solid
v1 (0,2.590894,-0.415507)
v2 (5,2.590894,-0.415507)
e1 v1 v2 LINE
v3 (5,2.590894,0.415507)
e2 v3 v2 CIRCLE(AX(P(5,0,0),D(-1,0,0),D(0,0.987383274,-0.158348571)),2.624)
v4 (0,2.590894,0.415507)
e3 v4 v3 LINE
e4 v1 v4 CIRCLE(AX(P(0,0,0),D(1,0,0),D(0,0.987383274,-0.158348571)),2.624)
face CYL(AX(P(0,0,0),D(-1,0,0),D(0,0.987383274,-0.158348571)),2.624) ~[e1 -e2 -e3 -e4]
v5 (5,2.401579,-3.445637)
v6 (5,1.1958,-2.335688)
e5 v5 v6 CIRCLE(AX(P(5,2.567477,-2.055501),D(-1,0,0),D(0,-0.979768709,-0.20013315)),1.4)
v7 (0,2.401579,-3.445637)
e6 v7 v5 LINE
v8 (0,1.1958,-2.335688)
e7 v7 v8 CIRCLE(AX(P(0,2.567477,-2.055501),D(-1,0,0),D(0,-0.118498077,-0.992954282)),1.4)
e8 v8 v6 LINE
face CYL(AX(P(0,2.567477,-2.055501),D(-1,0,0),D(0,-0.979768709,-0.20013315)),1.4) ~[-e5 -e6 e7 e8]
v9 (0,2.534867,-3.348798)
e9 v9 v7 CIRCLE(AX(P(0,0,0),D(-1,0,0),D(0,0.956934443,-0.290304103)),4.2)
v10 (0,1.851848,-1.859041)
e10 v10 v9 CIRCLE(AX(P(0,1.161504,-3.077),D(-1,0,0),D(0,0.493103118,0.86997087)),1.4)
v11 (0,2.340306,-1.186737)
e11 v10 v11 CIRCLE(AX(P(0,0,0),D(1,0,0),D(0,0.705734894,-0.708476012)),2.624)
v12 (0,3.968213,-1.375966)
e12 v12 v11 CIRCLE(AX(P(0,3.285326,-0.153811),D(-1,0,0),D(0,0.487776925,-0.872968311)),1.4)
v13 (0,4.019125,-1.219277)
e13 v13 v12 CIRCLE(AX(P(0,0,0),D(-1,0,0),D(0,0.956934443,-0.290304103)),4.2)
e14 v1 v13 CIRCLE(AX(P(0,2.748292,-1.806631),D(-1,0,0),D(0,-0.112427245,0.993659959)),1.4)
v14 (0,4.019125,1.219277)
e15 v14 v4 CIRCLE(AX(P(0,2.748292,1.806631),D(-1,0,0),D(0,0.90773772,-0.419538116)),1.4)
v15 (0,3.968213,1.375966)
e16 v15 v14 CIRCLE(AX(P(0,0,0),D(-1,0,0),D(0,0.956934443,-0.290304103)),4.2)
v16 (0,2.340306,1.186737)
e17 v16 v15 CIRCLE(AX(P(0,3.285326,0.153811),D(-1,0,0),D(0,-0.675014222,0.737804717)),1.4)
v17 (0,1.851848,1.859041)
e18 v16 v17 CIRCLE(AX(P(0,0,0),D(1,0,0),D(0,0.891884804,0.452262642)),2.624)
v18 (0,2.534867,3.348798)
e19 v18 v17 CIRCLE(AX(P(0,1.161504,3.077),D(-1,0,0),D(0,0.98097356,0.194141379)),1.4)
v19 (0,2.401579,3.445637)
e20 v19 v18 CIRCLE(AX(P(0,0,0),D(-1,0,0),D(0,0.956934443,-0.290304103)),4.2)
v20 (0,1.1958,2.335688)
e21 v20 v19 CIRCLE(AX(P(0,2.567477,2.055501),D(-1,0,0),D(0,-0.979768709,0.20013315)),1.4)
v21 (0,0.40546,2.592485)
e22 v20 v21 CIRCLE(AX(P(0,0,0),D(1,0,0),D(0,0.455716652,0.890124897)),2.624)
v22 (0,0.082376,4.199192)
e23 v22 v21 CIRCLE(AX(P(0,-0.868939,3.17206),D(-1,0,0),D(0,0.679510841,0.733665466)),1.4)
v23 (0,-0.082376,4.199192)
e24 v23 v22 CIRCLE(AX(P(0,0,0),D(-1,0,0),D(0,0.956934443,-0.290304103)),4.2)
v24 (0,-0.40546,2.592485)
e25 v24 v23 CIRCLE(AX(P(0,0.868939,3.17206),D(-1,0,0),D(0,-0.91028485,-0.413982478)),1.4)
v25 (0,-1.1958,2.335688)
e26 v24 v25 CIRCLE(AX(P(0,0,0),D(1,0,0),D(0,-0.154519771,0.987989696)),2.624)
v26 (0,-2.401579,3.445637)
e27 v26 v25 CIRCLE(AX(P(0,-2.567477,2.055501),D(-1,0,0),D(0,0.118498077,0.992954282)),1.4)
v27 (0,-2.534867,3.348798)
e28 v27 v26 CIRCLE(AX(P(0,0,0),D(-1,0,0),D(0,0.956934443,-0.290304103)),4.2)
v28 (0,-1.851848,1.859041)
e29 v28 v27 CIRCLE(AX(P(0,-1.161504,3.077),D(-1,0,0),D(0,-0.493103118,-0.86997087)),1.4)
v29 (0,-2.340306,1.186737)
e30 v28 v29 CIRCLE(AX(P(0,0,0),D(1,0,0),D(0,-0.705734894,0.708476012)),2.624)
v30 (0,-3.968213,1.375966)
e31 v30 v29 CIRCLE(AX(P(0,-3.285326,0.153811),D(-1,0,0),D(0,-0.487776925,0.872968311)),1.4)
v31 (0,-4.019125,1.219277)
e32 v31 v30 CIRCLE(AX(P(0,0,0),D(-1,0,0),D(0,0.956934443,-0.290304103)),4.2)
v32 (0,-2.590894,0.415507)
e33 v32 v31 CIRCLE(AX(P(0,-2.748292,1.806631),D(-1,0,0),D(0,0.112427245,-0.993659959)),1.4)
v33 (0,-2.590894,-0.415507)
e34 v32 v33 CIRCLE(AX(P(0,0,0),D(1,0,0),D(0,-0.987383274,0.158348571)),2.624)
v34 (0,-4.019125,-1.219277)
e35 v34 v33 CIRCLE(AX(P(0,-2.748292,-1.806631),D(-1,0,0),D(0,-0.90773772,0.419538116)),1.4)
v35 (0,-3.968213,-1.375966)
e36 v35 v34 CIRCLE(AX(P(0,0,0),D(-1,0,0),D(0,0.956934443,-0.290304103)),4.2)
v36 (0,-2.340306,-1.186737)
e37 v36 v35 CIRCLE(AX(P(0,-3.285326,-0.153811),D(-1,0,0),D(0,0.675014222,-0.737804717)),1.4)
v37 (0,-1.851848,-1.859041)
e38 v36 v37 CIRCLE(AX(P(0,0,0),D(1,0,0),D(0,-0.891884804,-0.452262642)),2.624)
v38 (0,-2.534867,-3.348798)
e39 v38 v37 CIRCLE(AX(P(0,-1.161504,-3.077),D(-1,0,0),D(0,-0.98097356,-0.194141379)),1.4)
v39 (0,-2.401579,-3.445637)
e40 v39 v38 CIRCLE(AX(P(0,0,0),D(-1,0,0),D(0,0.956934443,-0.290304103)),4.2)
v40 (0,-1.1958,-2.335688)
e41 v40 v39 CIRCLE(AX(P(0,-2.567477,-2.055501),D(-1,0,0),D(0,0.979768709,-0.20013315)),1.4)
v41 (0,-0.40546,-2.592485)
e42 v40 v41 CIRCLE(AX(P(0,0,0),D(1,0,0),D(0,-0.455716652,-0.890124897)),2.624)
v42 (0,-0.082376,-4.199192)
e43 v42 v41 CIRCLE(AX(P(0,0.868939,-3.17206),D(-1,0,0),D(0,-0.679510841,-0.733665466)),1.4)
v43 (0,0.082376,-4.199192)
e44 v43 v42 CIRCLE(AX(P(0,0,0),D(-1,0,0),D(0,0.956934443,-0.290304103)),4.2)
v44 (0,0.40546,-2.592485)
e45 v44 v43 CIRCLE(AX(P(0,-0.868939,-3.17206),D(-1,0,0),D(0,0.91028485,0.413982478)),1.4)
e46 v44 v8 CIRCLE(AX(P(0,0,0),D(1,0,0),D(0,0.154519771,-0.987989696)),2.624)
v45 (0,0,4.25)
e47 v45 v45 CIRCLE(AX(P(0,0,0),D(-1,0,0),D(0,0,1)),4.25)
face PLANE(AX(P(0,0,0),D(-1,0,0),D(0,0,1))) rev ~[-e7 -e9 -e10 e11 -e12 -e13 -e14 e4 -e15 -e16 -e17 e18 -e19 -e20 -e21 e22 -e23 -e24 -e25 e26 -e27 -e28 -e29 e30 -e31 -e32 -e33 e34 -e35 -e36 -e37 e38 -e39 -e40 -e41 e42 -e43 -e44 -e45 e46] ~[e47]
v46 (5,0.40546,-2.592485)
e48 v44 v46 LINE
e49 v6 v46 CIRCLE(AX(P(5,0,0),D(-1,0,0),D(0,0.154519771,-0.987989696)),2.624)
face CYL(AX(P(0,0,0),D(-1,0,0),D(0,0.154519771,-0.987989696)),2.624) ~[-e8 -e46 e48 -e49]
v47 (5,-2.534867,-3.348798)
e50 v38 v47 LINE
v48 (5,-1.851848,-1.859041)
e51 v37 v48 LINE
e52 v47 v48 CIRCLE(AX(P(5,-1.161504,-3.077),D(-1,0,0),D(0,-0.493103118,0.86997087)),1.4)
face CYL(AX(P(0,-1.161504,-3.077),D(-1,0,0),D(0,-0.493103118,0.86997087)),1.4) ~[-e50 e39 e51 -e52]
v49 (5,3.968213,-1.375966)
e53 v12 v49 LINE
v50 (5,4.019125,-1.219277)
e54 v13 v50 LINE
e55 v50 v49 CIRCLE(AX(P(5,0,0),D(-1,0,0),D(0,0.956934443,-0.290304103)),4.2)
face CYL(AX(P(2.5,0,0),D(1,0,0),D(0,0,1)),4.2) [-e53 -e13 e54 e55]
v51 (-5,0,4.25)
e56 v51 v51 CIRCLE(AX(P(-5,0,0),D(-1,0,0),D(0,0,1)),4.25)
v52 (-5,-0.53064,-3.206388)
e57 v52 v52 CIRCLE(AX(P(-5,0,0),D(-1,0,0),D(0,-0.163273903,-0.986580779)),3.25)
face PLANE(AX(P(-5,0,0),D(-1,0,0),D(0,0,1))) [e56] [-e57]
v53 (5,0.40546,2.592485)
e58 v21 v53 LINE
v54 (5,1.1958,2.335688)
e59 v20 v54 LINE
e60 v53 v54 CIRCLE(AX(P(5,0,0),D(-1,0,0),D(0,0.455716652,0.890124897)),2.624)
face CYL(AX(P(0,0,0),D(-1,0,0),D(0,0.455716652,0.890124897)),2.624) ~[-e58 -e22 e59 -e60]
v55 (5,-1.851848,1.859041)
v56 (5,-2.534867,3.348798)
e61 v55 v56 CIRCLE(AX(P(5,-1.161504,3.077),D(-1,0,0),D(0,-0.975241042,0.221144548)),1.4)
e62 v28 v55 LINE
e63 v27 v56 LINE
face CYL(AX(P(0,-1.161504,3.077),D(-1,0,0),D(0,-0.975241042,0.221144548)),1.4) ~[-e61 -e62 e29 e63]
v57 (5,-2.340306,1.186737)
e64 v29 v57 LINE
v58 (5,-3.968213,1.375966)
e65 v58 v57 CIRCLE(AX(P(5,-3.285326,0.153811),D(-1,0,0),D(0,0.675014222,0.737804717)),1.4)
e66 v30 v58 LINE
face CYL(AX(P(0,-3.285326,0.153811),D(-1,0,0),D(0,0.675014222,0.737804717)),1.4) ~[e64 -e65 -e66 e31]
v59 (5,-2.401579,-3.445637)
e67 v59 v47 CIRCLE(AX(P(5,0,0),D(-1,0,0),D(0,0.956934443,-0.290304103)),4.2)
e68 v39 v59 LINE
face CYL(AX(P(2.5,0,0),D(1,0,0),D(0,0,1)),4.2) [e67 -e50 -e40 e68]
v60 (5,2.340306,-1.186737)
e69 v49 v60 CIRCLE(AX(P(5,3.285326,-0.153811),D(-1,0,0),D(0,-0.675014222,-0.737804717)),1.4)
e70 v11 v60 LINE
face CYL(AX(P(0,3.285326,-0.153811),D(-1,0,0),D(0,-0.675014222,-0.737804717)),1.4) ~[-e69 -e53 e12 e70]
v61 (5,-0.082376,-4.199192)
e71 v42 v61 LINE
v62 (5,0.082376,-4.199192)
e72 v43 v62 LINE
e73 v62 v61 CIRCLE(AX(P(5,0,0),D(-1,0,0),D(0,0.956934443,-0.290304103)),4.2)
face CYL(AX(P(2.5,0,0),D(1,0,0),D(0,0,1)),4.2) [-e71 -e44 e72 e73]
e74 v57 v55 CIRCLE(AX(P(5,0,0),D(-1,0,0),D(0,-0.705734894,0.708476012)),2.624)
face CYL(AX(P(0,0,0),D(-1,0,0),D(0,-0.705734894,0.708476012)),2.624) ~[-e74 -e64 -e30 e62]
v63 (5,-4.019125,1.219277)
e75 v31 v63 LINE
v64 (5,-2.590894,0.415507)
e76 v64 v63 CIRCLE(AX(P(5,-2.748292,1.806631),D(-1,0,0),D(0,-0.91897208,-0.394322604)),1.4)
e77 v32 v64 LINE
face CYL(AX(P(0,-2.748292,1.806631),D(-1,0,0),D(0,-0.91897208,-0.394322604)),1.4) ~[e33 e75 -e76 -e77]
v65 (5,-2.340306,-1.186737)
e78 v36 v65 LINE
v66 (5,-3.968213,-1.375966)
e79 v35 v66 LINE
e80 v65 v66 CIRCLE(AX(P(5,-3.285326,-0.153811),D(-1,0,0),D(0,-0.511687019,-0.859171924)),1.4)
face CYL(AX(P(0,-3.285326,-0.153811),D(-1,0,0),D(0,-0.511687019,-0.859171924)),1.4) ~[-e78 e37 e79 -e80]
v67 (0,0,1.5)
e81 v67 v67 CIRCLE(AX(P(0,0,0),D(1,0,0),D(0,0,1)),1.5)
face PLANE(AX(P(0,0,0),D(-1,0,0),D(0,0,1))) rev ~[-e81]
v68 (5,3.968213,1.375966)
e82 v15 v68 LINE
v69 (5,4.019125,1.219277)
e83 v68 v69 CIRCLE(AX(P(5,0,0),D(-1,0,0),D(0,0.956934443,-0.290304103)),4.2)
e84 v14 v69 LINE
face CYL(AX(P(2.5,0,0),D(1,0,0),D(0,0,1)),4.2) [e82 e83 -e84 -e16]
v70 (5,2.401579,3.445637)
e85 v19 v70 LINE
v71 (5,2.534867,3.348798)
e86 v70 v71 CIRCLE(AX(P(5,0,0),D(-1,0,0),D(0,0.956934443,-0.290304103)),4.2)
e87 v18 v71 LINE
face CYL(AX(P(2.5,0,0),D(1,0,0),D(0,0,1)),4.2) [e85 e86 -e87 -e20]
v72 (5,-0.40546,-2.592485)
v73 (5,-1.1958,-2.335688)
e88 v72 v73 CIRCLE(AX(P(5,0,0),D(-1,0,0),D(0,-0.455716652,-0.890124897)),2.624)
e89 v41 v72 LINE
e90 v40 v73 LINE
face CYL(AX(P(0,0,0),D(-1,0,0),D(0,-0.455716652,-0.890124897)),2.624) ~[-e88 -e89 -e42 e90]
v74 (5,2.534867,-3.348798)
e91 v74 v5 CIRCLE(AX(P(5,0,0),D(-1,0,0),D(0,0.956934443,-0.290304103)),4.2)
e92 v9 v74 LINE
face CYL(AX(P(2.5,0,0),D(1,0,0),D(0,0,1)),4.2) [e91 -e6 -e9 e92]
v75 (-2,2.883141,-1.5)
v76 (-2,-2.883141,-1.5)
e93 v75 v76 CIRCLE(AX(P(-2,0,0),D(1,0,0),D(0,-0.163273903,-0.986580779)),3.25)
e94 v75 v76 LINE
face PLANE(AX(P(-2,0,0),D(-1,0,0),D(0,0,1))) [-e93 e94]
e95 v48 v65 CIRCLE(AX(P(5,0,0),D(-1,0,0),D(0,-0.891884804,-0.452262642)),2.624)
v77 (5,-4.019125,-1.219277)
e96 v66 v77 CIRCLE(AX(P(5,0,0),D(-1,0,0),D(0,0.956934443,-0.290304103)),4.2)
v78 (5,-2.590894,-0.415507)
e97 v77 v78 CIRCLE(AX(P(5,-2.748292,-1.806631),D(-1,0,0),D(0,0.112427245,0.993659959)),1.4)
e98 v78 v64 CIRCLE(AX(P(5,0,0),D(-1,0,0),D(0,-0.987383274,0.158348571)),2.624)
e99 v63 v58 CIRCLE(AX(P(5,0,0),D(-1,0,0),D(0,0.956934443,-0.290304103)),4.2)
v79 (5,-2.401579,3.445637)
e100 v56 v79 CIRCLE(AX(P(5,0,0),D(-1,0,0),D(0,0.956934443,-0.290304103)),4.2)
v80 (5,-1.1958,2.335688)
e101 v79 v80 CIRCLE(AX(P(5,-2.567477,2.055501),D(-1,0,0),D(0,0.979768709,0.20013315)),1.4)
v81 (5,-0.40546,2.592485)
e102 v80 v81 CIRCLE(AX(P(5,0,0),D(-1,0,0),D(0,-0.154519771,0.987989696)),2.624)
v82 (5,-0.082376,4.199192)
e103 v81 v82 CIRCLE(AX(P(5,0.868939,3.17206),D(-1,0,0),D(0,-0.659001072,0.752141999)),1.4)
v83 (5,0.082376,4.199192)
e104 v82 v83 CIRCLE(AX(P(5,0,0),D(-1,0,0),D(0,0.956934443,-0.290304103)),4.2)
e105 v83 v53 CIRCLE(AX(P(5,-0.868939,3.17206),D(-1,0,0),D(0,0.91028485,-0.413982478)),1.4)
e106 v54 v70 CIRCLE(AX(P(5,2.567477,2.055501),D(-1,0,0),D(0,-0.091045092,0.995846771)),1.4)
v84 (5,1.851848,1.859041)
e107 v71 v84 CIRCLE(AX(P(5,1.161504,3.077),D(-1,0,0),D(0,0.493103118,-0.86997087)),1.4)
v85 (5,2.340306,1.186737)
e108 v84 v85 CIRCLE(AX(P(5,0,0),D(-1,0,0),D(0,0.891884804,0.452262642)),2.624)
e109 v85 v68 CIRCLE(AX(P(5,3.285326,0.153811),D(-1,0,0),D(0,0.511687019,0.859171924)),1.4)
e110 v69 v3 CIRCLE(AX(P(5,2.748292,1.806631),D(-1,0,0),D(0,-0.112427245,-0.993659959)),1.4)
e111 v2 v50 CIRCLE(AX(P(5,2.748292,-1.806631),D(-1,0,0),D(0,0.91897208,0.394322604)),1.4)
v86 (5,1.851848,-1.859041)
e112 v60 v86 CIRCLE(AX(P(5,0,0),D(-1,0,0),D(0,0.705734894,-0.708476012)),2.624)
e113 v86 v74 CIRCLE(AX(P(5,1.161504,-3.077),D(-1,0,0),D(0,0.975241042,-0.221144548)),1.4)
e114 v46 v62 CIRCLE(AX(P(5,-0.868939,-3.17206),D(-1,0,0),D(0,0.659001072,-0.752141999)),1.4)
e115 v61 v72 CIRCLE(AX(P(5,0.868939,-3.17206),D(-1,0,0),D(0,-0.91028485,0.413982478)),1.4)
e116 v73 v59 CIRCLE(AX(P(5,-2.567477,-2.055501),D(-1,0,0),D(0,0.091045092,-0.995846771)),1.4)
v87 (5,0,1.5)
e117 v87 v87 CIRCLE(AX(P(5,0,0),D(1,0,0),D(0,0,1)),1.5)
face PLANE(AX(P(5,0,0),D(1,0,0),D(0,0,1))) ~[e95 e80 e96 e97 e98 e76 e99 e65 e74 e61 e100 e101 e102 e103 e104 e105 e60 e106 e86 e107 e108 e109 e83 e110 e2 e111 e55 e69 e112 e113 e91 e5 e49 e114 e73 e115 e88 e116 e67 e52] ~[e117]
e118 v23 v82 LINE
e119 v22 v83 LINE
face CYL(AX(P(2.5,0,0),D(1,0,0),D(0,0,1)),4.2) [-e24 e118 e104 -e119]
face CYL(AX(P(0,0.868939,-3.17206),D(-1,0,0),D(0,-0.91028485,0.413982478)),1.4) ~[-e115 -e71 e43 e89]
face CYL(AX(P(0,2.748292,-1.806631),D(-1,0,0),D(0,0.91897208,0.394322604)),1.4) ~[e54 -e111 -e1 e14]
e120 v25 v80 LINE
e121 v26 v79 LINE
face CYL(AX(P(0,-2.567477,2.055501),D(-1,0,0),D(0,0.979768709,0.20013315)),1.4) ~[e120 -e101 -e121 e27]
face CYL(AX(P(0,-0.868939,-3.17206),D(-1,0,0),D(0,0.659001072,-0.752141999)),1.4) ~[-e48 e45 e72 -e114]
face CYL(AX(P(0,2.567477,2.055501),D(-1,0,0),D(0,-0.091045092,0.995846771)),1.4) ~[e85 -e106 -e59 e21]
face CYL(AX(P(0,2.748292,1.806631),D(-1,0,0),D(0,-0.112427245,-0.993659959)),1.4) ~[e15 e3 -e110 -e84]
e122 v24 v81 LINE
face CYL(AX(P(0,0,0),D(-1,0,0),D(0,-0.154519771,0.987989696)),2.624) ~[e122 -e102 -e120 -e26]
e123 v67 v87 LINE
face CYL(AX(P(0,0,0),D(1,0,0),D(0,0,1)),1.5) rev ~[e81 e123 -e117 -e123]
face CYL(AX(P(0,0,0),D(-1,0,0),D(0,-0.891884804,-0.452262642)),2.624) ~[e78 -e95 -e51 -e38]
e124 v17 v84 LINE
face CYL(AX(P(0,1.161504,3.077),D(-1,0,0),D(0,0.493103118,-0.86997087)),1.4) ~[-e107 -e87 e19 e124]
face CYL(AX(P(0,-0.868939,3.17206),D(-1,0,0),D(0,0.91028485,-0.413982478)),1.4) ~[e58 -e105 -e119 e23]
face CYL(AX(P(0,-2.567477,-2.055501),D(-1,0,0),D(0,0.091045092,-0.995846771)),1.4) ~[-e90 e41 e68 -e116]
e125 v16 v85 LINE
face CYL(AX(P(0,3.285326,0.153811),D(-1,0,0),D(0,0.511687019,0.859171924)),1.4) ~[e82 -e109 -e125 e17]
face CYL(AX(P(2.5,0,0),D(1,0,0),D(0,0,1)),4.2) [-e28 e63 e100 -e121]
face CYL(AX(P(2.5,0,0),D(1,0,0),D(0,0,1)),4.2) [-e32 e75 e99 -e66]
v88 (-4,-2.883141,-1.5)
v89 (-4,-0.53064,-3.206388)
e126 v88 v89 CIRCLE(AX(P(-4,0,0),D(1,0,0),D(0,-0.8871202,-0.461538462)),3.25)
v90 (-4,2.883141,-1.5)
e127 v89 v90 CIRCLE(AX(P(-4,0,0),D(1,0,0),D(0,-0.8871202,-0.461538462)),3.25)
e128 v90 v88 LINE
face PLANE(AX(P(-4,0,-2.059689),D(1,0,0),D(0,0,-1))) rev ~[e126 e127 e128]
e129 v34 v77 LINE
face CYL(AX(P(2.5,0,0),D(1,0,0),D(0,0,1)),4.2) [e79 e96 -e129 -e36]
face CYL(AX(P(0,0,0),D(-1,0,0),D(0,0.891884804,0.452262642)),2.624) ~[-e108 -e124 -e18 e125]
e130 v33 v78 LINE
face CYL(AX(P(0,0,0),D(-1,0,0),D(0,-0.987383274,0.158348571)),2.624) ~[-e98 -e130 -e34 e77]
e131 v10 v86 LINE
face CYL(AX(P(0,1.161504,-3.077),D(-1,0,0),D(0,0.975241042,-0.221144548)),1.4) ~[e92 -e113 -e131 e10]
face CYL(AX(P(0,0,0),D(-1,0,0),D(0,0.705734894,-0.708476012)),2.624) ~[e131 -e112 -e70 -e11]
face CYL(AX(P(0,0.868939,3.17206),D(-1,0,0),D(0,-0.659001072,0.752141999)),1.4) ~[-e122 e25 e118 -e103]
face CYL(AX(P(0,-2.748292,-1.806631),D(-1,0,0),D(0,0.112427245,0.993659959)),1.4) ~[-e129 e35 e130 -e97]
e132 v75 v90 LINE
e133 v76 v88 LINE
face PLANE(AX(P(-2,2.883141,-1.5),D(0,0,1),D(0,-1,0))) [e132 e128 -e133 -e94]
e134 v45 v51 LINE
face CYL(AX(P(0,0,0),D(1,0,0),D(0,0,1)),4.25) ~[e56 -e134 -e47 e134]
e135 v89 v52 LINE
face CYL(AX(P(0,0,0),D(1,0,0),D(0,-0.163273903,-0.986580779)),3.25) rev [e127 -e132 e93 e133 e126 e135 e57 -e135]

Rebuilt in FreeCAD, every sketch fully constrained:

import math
import FreeCAD as App
import Part
import Sketcher


def add_polygon(sketch, points):
    """Adds a closed chain of lines whose ends are joined by coincident constraints."""
    first, n = sketch.GeometryCount, len(points)
    for a, b in zip(points, points[1:] + points[:1]):
        sketch.addGeometry(Part.LineSegment(App.Vector(*a, 0), App.Vector(*b, 0)), False)
    for i in range(n):
        sketch.addConstraint(Sketcher.Constraint("Coincident", first + i, 2, first + (i + 1) % n, 1))

doc = App.newDocument("Part")
body = doc.addObject("PartDesign::Body", "Body")

sketch1 = body.newObject("Sketcher::SketchObject", "Sketch")
sketch1.AttachmentSupport = (doc.getObject("XZ_Plane"), [""])
sketch1.MapMode = "FlatFace"
add_polygon(sketch1, [(0, -4.2), (0, 0), (5, 0), (5, -4.2)])
sketch1.addConstraint([
    Sketcher.Constraint("Vertical", 0),
    Sketcher.Constraint("Horizontal", 1),
    Sketcher.Constraint("Vertical", 2),
    Sketcher.Constraint("Horizontal", 3),
    Sketcher.Constraint("Coincident", 0, 2, -1, 1),
    Sketcher.Constraint("DistanceX", 1, 1, 1, 2, 5.0),
    Sketcher.Constraint("DistanceY", 0, 1, 0, 2, 4.2),
])
revolution = body.newObject("PartDesign::Revolution", "Revolution")
revolution.Profile = sketch1
revolution.ReferenceAxis = (sketch1, ["H_Axis"])
revolution.Angle = 360

sketch2 = body.newObject("Sketcher::SketchObject", "Sketch001")
sketch2.AttachmentSupport = (doc.getObject("YZ_Plane"), [""])
sketch2.MapMode = "FlatFace"
sketch2.addGeometry([
    Part.ArcOfCircle(Part.Circle(App.Vector(0, 0, 0), App.Vector(0, 0, 1), 2.624), math.radians(-9.111054), math.radians(9.111054)),
    Part.ArcOfCircle(Part.Circle(App.Vector(2.748292, -1.806631, 0), App.Vector(0, 0, 1), 1.4), math.radians(23.223733), math.radians(96.455255)),
    Part.ArcOfCircle(Part.Circle(App.Vector(0, 0, 0), App.Vector(0, 0, 1), 4.2254), math.radians(-17.272324), math.radians(17.272324)),
    Part.ArcOfCircle(Part.Circle(App.Vector(2.748292, 1.806631, 0), App.Vector(0, 0, 1), 1.4), math.radians(-96.455255), math.radians(-23.223733)),
], False)
sketch2.addConstraint([
    Sketcher.Constraint("Coincident", 0, 1, 1, 2),
    Sketcher.Constraint("Coincident", 1, 1, 2, 1),
    Sketcher.Constraint("Coincident", 2, 2, 3, 2),
    Sketcher.Constraint("Coincident", 3, 1, 0, 2),
    Sketcher.Constraint("Coincident", 0, 3, -1, 1),
    Sketcher.Constraint("Coincident", 2, 3, -1, 1),
    Sketcher.Constraint("Equal", 1, 3),
    Sketcher.Constraint("Symmetric", 1, 3, 3, 3, -1),
    Sketcher.Constraint("Radius", 1, 1.4),
    Sketcher.Constraint("Radius", 0, 2.624),
    Sketcher.Constraint("Radius", 2, 4.2254),
    Sketcher.Constraint("DistanceX", 0, 1, 1, 3, 0.157398),
    Sketcher.Constraint("DistanceX", -1, 1, 1, 3, 2.748292),
])
pocket1 = body.newObject("PartDesign::Pocket", "Pocket")
pocket1.Profile = sketch2
pocket1.Type = "ThroughAll"
pocket1.Reversed = True
doc.recompute()

polarpattern = body.newObject("PartDesign::PolarPattern", "PolarPattern")
polarpattern.Originals = [pocket1]
polarpattern.Axis = (doc.getObject("X_Axis"), [""])
polarpattern.Angle = 360
polarpattern.Occurrences = 10
body.Tip = polarpattern

sketch3 = body.newObject("Sketcher::SketchObject", "Sketch002")
sketch3.AttachmentSupport = (doc.getObject("YZ_Plane"), [""])
sketch3.MapMode = "FlatFace"
sketch3.addGeometry(Part.Circle(App.Vector(0, 0, 0), App.Vector(0, 0, 1), 1.5), False)
sketch3.addConstraint([
    Sketcher.Constraint("Coincident", 0, 3, -1, 1),
    Sketcher.Constraint("Diameter", 0, 3.0),
])
pocket2 = body.newObject("PartDesign::Pocket", "Pocket001")
pocket2.Profile = sketch3
pocket2.Length = 100.000102
pocket2.Midplane = True

sketch4 = body.newObject("Sketcher::SketchObject", "Sketch003")
sketch4.AttachmentSupport = (doc.getObject("YZ_Plane"), [""])
sketch4.MapMode = "FlatFace"
sketch4.addGeometry([
    Part.Circle(App.Vector(0, 0, 0), App.Vector(0, 0, 1), 4.25),
    Part.Circle(App.Vector(0, 0, 0), App.Vector(0, 0, 1), 3.25),
], False)
sketch4.addConstraint([
    Sketcher.Constraint("Coincident", 0, 3, -1, 1),
    Sketcher.Constraint("Coincident", 1, 3, -1, 1),
    Sketcher.Constraint("Diameter", 0, 8.5),
    Sketcher.Constraint("Diameter", 1, 6.5),
])
pad1 = body.newObject("PartDesign::Pad", "Pad")
pad1.Profile = sketch4
pad1.Length = 5
pad1.Reversed = True

sketch5 = body.newObject("Sketcher::SketchObject", "Sketch004")
sketch5.AttachmentSupport = (doc.getObject("YZ_Plane"), [""])
sketch5.MapMode = "FlatFace"
sketch5.addGeometry(Part.Circle(App.Vector(0, 0, 0), App.Vector(0, 0, 1), 3.25), False)
sketch5.addConstraint([
    Sketcher.Constraint("Coincident", 0, 3, -1, 1),
    Sketcher.Constraint("Diameter", 0, 6.5),
])
pad2 = body.newObject("PartDesign::Pad", "Pad001")
pad2.Profile = sketch5
pad2.Length = 2
pad2.Reversed = True

sketch6 = body.newObject("Sketcher::SketchObject", "Sketch005")
sketch6.AttachmentSupport = (doc.getObject("YZ_Plane"), [""])
sketch6.MapMode = "FlatFace"
sketch6.AttachmentOffset = App.Placement(App.Vector(0, 0, -2), App.Rotation())
sketch6.addGeometry([
    Part.LineSegment(App.Vector(-2.883141, -1.5, 0), App.Vector(2.883141, -1.5, 0)),
    Part.ArcOfCircle(Part.Circle(App.Vector(0, 0, 0), App.Vector(0, 0, 1), 3.25), math.radians(-152.513574), math.radians(-27.486426)),
], False)
sketch6.addConstraint([
    Sketcher.Constraint("Coincident", 0, 1, 1, 1),
    Sketcher.Constraint("Coincident", 1, 2, 0, 2),
    Sketcher.Constraint("Horizontal", 0),
    Sketcher.Constraint("Coincident", 1, 3, -1, 1),
    Sketcher.Constraint("Radius", 1, 3.25),
    Sketcher.Constraint("DistanceY", 0, 1, -1, 1, 1.5),
])
pad3 = body.newObject("PartDesign::Pad", "Pad002")
pad3.Profile = sketch6
pad3.Length = 2
pad3.Reversed = True

doc.recompute()
